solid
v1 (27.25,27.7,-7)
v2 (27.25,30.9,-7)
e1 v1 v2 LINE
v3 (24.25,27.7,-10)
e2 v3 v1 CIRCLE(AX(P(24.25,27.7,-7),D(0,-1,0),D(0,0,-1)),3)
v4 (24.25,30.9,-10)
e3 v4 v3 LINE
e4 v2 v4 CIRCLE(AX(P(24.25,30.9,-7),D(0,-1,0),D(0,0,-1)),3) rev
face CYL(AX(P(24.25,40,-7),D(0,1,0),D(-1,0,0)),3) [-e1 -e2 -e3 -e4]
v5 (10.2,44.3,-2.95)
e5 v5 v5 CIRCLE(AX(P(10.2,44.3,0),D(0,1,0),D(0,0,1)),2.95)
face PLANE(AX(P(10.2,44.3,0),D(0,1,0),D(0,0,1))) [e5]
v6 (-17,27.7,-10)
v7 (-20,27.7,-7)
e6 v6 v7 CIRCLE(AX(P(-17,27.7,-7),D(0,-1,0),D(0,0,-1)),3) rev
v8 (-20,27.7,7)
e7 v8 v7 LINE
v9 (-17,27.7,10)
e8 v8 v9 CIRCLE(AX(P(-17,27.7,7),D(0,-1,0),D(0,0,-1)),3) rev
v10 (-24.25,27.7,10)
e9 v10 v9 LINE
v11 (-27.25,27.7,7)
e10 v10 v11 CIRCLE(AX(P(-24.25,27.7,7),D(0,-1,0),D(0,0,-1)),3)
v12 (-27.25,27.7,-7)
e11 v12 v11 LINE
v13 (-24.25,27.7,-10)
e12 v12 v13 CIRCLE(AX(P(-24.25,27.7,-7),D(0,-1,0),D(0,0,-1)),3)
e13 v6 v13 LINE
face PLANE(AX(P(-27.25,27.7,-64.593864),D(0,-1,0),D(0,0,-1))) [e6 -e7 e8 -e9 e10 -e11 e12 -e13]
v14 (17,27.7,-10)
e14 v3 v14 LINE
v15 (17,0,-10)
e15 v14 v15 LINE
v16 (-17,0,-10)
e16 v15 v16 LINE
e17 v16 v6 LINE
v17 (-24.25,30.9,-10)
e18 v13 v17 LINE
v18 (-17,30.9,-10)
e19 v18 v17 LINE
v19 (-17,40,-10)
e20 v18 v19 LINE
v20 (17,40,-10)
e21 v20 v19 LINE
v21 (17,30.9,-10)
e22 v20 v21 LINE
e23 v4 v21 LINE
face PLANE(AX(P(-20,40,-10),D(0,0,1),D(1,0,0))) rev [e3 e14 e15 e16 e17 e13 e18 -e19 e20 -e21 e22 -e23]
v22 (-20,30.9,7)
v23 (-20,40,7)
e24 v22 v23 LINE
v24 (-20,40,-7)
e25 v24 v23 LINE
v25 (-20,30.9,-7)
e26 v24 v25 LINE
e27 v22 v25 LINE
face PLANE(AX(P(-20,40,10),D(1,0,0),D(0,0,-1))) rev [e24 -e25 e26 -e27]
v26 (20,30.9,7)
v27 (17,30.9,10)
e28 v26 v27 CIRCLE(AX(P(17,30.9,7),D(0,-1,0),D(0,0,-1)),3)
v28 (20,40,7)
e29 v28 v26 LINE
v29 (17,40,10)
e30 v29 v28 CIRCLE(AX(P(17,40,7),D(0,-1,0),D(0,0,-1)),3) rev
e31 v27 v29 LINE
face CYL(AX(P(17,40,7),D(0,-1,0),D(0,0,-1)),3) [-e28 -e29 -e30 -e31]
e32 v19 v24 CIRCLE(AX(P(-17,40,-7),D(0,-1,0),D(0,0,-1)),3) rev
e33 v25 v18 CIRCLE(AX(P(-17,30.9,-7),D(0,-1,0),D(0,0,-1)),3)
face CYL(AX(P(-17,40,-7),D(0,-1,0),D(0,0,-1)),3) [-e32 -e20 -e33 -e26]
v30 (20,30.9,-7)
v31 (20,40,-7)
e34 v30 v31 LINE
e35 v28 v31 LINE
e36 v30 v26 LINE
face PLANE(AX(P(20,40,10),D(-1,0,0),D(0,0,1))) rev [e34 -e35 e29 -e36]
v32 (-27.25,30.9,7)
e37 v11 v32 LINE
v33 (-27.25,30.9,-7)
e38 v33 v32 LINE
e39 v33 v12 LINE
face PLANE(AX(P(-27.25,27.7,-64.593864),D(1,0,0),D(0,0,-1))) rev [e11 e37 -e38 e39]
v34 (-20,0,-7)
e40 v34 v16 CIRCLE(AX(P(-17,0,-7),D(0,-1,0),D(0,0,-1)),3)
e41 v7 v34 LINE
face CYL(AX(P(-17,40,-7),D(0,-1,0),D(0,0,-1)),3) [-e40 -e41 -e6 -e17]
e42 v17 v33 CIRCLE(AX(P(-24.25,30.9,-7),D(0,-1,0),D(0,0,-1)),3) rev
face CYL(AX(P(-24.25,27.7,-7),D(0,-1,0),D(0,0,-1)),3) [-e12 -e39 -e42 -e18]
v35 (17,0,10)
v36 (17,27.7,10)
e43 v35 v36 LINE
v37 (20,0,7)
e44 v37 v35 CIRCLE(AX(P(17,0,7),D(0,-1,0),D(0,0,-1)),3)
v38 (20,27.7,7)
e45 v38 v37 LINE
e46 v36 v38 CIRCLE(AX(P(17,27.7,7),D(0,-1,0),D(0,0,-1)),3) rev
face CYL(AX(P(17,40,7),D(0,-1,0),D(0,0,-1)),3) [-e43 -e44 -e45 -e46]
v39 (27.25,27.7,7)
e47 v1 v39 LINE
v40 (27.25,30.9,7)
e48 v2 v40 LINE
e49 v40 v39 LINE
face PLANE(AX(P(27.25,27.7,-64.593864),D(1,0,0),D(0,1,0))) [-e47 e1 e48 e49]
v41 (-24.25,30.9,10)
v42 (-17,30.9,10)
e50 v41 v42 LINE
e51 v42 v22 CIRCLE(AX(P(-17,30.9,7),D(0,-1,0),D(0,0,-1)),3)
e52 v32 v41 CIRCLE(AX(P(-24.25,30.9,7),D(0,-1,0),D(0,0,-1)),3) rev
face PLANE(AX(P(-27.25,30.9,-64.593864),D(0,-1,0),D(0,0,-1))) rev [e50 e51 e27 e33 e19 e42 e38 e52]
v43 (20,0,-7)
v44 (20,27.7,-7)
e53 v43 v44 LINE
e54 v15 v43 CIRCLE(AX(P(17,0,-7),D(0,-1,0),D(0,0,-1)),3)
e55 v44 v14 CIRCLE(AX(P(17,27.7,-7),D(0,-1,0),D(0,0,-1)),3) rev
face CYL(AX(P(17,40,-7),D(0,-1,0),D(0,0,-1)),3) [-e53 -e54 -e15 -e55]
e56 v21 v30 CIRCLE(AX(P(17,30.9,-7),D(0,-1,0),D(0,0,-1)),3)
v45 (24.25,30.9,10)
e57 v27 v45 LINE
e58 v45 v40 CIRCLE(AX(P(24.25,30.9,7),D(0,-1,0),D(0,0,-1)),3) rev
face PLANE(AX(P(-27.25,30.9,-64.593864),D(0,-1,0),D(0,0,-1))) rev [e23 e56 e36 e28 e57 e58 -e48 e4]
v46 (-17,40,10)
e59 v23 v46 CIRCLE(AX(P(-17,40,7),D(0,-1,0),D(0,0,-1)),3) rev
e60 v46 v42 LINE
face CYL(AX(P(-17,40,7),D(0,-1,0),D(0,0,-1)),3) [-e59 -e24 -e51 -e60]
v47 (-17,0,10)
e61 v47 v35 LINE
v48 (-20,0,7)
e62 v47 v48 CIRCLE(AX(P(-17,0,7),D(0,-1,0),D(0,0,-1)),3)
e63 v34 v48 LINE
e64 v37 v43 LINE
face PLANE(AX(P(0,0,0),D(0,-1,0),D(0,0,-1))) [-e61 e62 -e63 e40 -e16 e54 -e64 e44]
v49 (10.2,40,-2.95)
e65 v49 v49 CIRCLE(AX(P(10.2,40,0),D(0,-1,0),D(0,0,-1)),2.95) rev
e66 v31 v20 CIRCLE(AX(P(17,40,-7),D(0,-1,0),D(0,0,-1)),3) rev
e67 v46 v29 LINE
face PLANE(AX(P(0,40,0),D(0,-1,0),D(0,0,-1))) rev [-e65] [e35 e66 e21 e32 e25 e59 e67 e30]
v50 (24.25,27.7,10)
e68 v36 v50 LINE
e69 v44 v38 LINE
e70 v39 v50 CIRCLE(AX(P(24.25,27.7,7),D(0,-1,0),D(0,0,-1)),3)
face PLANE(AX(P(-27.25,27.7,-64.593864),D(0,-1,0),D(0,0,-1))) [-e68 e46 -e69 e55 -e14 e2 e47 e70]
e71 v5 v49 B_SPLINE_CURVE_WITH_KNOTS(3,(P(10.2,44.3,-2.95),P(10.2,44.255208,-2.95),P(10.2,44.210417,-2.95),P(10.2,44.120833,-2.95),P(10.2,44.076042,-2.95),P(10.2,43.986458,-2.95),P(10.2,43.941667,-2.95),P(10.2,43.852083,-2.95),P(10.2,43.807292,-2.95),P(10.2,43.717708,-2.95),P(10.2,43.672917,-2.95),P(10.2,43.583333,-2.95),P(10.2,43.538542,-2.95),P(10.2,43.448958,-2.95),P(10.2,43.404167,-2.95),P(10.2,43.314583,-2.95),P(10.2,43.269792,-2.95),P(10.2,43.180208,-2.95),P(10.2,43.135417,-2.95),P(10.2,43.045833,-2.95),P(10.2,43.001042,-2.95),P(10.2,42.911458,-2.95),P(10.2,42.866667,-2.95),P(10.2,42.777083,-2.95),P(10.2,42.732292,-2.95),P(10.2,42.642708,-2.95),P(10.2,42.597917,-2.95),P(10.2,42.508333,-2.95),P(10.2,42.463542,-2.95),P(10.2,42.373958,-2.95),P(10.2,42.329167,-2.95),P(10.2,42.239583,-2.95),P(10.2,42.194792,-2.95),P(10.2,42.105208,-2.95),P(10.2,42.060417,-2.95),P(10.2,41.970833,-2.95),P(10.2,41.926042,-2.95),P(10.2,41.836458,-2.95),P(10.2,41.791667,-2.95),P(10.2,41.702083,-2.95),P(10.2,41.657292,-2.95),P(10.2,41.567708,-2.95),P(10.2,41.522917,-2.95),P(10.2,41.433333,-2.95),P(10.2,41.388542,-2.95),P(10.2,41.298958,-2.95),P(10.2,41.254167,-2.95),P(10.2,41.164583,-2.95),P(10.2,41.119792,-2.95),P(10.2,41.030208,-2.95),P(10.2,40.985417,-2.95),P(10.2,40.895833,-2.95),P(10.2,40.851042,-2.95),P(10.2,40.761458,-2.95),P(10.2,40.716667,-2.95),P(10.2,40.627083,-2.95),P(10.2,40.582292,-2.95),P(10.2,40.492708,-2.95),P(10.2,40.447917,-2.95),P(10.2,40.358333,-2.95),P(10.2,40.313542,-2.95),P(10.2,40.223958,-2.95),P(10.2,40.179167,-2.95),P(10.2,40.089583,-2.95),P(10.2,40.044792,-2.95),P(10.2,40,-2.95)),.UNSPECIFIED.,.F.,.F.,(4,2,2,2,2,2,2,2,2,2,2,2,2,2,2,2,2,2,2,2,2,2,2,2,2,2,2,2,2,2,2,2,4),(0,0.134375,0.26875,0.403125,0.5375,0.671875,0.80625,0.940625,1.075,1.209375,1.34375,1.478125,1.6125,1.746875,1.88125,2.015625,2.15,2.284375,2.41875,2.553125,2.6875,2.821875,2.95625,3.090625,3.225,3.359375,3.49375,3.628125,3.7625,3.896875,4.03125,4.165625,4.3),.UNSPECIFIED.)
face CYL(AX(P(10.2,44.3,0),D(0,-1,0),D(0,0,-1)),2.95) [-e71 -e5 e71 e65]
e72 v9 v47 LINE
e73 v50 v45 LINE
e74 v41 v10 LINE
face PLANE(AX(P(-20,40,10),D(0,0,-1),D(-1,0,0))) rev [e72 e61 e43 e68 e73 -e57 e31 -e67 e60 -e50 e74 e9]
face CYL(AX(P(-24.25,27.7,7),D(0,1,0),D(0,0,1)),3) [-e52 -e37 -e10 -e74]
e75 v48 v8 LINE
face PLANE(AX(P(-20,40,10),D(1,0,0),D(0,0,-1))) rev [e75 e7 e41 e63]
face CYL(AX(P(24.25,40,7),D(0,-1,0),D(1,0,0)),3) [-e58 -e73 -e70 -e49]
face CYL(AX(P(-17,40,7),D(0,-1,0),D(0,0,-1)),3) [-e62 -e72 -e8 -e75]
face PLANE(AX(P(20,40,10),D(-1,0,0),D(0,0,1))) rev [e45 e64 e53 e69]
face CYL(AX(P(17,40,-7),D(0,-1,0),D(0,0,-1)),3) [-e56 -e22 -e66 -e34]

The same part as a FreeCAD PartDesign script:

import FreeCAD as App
import Part
import Sketcher
from FreeCAD import Vector
Q = App.Units.Quantity


def edges_at(feature, points):
    """Names of the edges that pass closest to the given points."""
    edges = feature.Shape.Edges
    near = lambda p: min(range(len(edges)), key=lambda i: edges[i].distToShape(Part.Vertex(*p))[0])
    return sorted({f"Edge{near(p) + 1}" for p in points})

doc = App.newDocument("Part")
body = doc.addObject("PartDesign::Body", "Body")

# Sketch on XZ plane
sketch1 = doc.addObject("Sketcher::SketchObject", "Sketch")
body.addObject(sketch1)
sketch1.AttachmentSupport = (doc.XZ_Plane, [""])
sketch1.MapMode = "FlatFace"
sketch1.addGeometry(Part.LineSegment(Vector(-20, -10, 0), Vector(-20, 10, 0)), False)
sketch1.addGeometry(Part.LineSegment(Vector(-20, 10, 0), Vector(20, 10, 0)), False)
sketch1.addGeometry(Part.LineSegment(Vector(20, 10, 0), Vector(20, -10, 0)), False)
sketch1.addGeometry(Part.LineSegment(Vector(20, -10, 0), Vector(-20, -10, 0)), False)
sketch1.addConstraint(Sketcher.Constraint("Coincident", 0, 2, 1, 1))
sketch1.addConstraint(Sketcher.Constraint("Coincident", 1, 2, 2, 1))
sketch1.addConstraint(Sketcher.Constraint("Coincident", 2, 2, 3, 1))
sketch1.addConstraint(Sketcher.Constraint("Coincident", 3, 2, 0, 1))
sketch1.addConstraint(Sketcher.Constraint("Vertical", 0))
sketch1.addConstraint(Sketcher.Constraint("Horizontal", 1))
sketch1.addConstraint(Sketcher.Constraint("Vertical", 2))
sketch1.addConstraint(Sketcher.Constraint("Horizontal", 3))
sketch1.addConstraint(Sketcher.Constraint("Symmetric", 0, 2, 2, 2, -1, 1))
sketch1.addConstraint(Sketcher.Constraint("DistanceX", 1, 1, 1, 2, Q("40 mm")))
sketch1.addConstraint(Sketcher.Constraint("DistanceY", 0, 1, 0, 2, Q("20 mm")))
pad1 = doc.addObject("PartDesign::Pad", "Pad")
body.addObject(pad1)
pad1.Profile = sketch1
pad1.Length = 40
pad1.Reversed = True

# Sketch on XY plane
sketch2 = doc.addObject("Sketcher::SketchObject", "Sketch001")
body.addObject(sketch2)
sketch2.AttachmentSupport = (doc.XY_Plane, [""])
sketch2.MapMode = "FlatFace"
sketch2.AttachmentOffset = App.Placement(Vector(0, 0, 10), App.Rotation())
sketch2.addGeometry(Part.LineSegment(Vector(-27.2, 30.9, 0), Vector(-27.2, 27.7, 0)), False)
sketch2.addGeometry(Part.LineSegment(Vector(-27.2, 27.7, 0), Vector(27.2, 27.7, 0)), False)
sketch2.addGeometry(Part.LineSegment(Vector(27.2, 27.7, 0), Vector(27.2, 30.9, 0)), False)
sketch2.addGeometry(Part.LineSegment(Vector(27.2, 30.9, 0), Vector(-27.2, 30.9, 0)), False)
sketch2.addConstraint(Sketcher.Constraint("Coincident", 0, 2, 1, 1))
sketch2.addConstraint(Sketcher.Constraint("Coincident", 1, 2, 2, 1))
sketch2.addConstraint(Sketcher.Constraint("Coincident", 2, 2, 3, 1))
sketch2.addConstraint(Sketcher.Constraint("Coincident", 3, 2, 0, 1))
sketch2.addConstraint(Sketcher.Constraint("Vertical", 0))
sketch2.addConstraint(Sketcher.Constraint("Horizontal", 1))
sketch2.addConstraint(Sketcher.Constraint("Vertical", 2))
sketch2.addConstraint(Sketcher.Constraint("Horizontal", 3))
sketch2.addConstraint(Sketcher.Constraint("DistanceX", 1, 1, 1, 2, Q("54.5 mm")))
sketch2.addConstraint(Sketcher.Constraint("DistanceY", 0, 2, 0, 1, Q("3.2 mm")))
sketch2.addConstraint(Sketcher.Constraint("DistanceY", -1, 1, 0, 2, Q("27.7 mm")))
sketch2.addConstraint(Sketcher.Constraint("DistanceX", 0, 2, -1, 1, Q("27.25 mm")))
pad2 = doc.addObject("PartDesign::Pad", "Pad001")
body.addObject(pad2)
pad2.Profile = sketch2
pad2.Length = 20
pad2.Reversed = True
doc.recompute()

fillet = doc.addObject("PartDesign::Fillet", "Fillet")
body.addObject(fillet)
fillet.Base = (pad2, edges_at(pad2, [
    (20, 13.85, 10),
    (-20, 13.85, 10),
    (-20, 13.85, -10),
    (20, 13.85, -10),
    (27.25, 29.3, 10),
    (27.25, 29.3, -10),
    (-27.25, 29.3, -10),
    (-27.25, 29.3, 10),
    (20, 35.45, 10),
    (-20, 35.45, 10),
    (-20, 35.45, -10),
    (20, 35.45, -10),
]))
fillet.Radius = 3

# Sketch on XZ plane
sketch3 = doc.addObject("Sketcher::SketchObject", "Sketch002")
body.addObject(sketch3)
sketch3.AttachmentSupport = (doc.XZ_Plane, [""])
sketch3.MapMode = "FlatFace"
sketch3.AttachmentOffset = App.Placement(Vector(0, 0, -40), App.Rotation())
sketch3.addGeometry(Part.Circle(Vector(10.2, 0, 0), Vector(0, 0, 1), 3), False)
sketch3.addConstraint(Sketcher.Constraint("PointOnObject", 0, 3, -1))
sketch3.addConstraint(Sketcher.Constraint("Diameter", 0, Q("5.9 mm")))
sketch3.addConstraint(Sketcher.Constraint("DistanceX", -1, 1, 0, 3, Q("10.2 mm")))
pad3 = doc.addObject("PartDesign::Pad", "Pad002")
body.addObject(pad3)
pad3.Profile = sketch3
pad3.Length = 4.3
pad3.Reversed = True

doc.recompute()
